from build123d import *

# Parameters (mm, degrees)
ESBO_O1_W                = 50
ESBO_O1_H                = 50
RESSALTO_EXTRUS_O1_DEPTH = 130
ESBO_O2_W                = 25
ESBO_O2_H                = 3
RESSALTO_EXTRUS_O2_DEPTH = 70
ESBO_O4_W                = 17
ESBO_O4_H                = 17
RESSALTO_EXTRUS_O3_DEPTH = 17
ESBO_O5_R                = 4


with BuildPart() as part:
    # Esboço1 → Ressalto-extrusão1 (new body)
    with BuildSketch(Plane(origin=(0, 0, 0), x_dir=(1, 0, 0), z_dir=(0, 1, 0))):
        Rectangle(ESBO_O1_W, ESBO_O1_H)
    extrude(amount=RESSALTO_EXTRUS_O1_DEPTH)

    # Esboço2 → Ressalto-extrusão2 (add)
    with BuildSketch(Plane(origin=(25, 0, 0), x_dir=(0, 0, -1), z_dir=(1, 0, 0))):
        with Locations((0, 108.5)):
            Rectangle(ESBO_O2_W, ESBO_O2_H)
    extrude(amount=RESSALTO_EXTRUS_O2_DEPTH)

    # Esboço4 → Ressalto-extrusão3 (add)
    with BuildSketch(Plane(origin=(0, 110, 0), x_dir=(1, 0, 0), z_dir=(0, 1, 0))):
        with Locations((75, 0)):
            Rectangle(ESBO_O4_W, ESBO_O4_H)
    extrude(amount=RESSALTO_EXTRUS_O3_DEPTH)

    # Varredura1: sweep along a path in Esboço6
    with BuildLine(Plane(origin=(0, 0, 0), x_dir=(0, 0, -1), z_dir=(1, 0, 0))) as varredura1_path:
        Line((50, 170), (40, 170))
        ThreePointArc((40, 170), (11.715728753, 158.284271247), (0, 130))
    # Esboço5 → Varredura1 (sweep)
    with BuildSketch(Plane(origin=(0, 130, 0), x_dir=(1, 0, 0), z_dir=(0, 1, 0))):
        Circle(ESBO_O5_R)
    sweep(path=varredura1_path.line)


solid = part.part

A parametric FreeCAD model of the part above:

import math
import FreeCAD as App
import Part
import Sketcher

V = App.Vector


def add_polygon(sketch, points):
    """Adds a closed chain of lines whose ends are joined by coincident constraints."""
    first, n = sketch.GeometryCount, len(points)
    for a, b in zip(points, points[1:] + points[:1]):
        sketch.addGeometry(Part.LineSegment(App.Vector(*a, 0), App.Vector(*b, 0)), False)
    for i in range(n):
        sketch.addConstraint(Sketcher.Constraint("Coincident", first + i, 2, first + (i + 1) % n, 1))

doc = App.newDocument("Part")
body = doc.addObject("PartDesign::Body", "Body")

# Sketch on XZ plane
sketch1 = doc.addObject("Sketcher::SketchObject", "Sketch")
body.addObject(sketch1)
sketch1.AttachmentSupport = (doc.XZ_Plane, [""])
sketch1.MapMode = "FlatFace"
add_polygon(sketch1, [(-25, -25), (-25, 25), (25, 25), (25, -25)])  # lines 0-3
sketch1.addConstraint(Sketcher.Constraint("Vertical", 0))
sketch1.addConstraint(Sketcher.Constraint("Horizontal", 1))
sketch1.addConstraint(Sketcher.Constraint("Vertical", 2))
sketch1.addConstraint(Sketcher.Constraint("Horizontal", 3))
sketch1.addConstraint(Sketcher.Constraint("Symmetric", 0, 2, 2, 2, -1, 1))
sketch1.addConstraint(Sketcher.Constraint("Equal", 3, 0))
sketch1.addConstraint(Sketcher.Constraint("DistanceX", 1, 1, 1, 2, 50.0))
pad1 = doc.addObject("PartDesign::Pad", "Pad")
body.addObject(pad1)
pad1.Profile = sketch1
pad1.Length = 130
pad1.Reversed = True

# Sketch on YZ plane
sketch2 = doc.addObject("Sketcher::SketchObject", "Sketch001")
body.addObject(sketch2)
sketch2.AttachmentSupport = (doc.YZ_Plane, [""])
sketch2.MapMode = "FlatFace"
sketch2.AttachmentOffset = App.Placement(V(0, 0, 25), App.Rotation())
add_polygon(sketch2, [(110, 12.5), (107, 12.5), (107, -12.5), (110, -12.5)])  # lines 0-3
sketch2.addConstraint(Sketcher.Constraint("Horizontal", 0))
sketch2.addConstraint(Sketcher.Constraint("Vertical", 1))
sketch2.addConstraint(Sketcher.Constraint("Horizontal", 2))
sketch2.addConstraint(Sketcher.Constraint("Vertical", 3))
sketch2.addConstraint(Sketcher.Constraint("DistanceX", 0, 2, 0, 1, 3.0))
sketch2.addConstraint(Sketcher.Constraint("DistanceY", 1, 2, 1, 1, 25.0))
sketch2.addConstraint(Sketcher.Constraint("DistanceX", -1, 1, 0, 2, 107.0))
sketch2.addConstraint(Sketcher.Constraint("DistanceY", -1, 1, 0, 2, 12.5))
pad2 = doc.addObject("PartDesign::Pad", "Pad001")
body.addObject(pad2)
pad2.Profile = sketch2
pad2.Length = 70

# Sketch on XZ plane
sketch3 = doc.addObject("Sketcher::SketchObject", "Sketch002")
body.addObject(sketch3)
sketch3.AttachmentSupport = (doc.XZ_Plane, [""])
sketch3.MapMode = "FlatFace"
sketch3.AttachmentOffset = App.Placement(V(0, 0, -110), App.Rotation())
add_polygon(sketch3, [(66, -8), (66, 8), (84, 8), (84, -8)])  # lines 0-3
sketch3.addConstraint(Sketcher.Constraint("Vertical", 0))
sketch3.addConstraint(Sketcher.Constraint("Horizontal", 1))
sketch3.addConstraint(Sketcher.Constraint("Vertical", 2))
sketch3.addConstraint(Sketcher.Constraint("Horizontal", 3))
sketch3.addConstraint(Sketcher.Constraint("Equal", 3, 0))
sketch3.addConstraint(Sketcher.Constraint("DistanceX", 1, 1, 1, 2, 17.0))
sketch3.addConstraint(Sketcher.Constraint("DistanceX", -1, 1, 0, 2, 66.5))
sketch3.addConstraint(Sketcher.Constraint("DistanceY", -1, 1, 0, 2, 8.5))
pad3 = doc.addObject("PartDesign::Pad", "Pad002")
body.addObject(pad3)
pad3.Profile = sketch3
pad3.Length = 17
pad3.Reversed = True

# Sketch on XZ plane
sketch4 = doc.addObject("Sketcher::SketchObject", "Sketch003")
body.addObject(sketch4)
sketch4.AttachmentSupport = (doc.XZ_Plane, [""])
sketch4.MapMode = "FlatFace"
sketch4.AttachmentOffset = App.Placement(V(0, 0, -130), App.Rotation())
sketch4.addGeometry(Part.Circle(V(0, 0, 0), V(0, 0, 1), 4), False)
sketch4.addConstraint(Sketcher.Constraint("Coincident", 0, 3, -1, 1))
sketch4.addConstraint(Sketcher.Constraint("Diameter", 0, 8.0))

# Sketch on YZ plane
sketch5 = doc.addObject("Sketcher::SketchObject", "Sketch004")
body.addObject(sketch5)
sketch5.AttachmentSupport = (doc.YZ_Plane, [""])
sketch5.MapMode = "FlatFace"
sketch5.addGeometry(Part.LineSegment(V(170, -50, 0), V(170, -40, 0)), False)
sketch5.addGeometry(Part.ArcOfCircle(Part.Circle(V(130, -40, 0), V(0, 0, 1), 40), math.radians(0), math.radians(90)), False)
sketch5.addConstraint(Sketcher.Constraint("Tangent", 0, 2, 1, 1))
sketch5.addConstraint(Sketcher.Constraint("Vertical", 0))
sketch5.addConstraint(Sketcher.Constraint("PointOnObject", 1, 2, -1))
sketch5.addConstraint(Sketcher.Constraint("Radius", 1, 40.0))
sketch5.addConstraint(Sketcher.Constraint("DistanceY", 0, 1, 0, 2, 10.0))
sketch5.addConstraint(Sketcher.Constraint("DistanceX", -1, 1, 1, 3, 130.0))
sketch5.addConstraint(Sketcher.Constraint("DistanceX", -1, 1, 1, 2, 130.0))
doc.recompute()

additivepipe = doc.addObject("PartDesign::AdditivePipe", "AdditivePipe")
body.addObject(additivepipe)
additivepipe.Profile = sketch4
additivepipe.Spine = (sketch5, ["Edge1", "Edge2"])

doc.recompute()
